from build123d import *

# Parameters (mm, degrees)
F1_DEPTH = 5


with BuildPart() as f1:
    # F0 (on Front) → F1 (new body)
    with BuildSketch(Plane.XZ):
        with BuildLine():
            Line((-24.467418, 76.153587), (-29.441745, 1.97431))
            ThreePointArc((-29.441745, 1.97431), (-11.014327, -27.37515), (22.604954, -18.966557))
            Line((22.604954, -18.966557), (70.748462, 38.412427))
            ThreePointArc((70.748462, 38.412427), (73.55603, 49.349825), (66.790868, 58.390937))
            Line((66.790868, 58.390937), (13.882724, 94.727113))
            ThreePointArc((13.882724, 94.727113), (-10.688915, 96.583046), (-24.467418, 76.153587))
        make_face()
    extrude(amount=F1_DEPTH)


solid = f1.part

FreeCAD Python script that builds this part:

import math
import FreeCAD as App
import Part
import Sketcher

V = App.Vector
Q = App.Units.Quantity

doc = App.newDocument("Part")
body = doc.addObject("PartDesign::Body", "Body")

sketch1 = body.newObject("Sketcher::SketchObject", "Sketch")
sketch1.AttachmentSupport = (doc.getObject("XZ_Plane"), [""])
sketch1.MapMode = "FlatFace"
sketch1.addGeometry(Part.LineSegment(V(-24.467418, 76.153587, 0), V(-29.441745, 1.97431, 0)), False)
sketch1.addGeometry(Part.ArcOfCircle(Part.Circle(V(0, 0, 0), V(0, 0, 1), 29.507867), math.radians(176.163593), math.radians(320.001862)), False)
sketch1.addGeometry(Part.LineSegment(V(22.604954, -18.966557, 0), V(70.748462, 38.412427, 0)), False)
sketch1.addGeometry(Part.ArcOfCircle(Part.Circle(V(60.738944, 46.810856, 0), V(0, 0, 1), 13.066142), math.radians(-39.998138), math.radians(62.407756)), False)
sketch1.addGeometry(Part.LineSegment(V(66.790868, 58.390937, 0), V(13.882724, 94.727113, 0)), False)
sketch1.addGeometry(Part.ArcOfCircle(Part.Circle(V(0, 74.512848, 0), V(0, 0, 1), 24.522369), math.radians(55.519555), math.radians(176.163595)), False)
sketch1.addConstraint(Sketcher.Constraint("Coincident", 0, 2, 1, 1))
sketch1.addConstraint(Sketcher.Constraint("Coincident", 1, 2, 2, 1))
sketch1.addConstraint(Sketcher.Constraint("Coincident", 2, 2, 3, 1))
sketch1.addConstraint(Sketcher.Constraint("Coincident", 3, 2, 4, 1))
sketch1.addConstraint(Sketcher.Constraint("Coincident", 4, 2, 5, 1))
sketch1.addConstraint(Sketcher.Constraint("Coincident", 5, 2, 0, 1))
sketch1.addConstraint(Sketcher.Constraint("Coincident", 1, 3, -1, 1))
sketch1.addConstraint(Sketcher.Constraint("PointOnObject", 5, 3, -2))
sketch1.addConstraint(Sketcher.Constraint("Radius", 3, Q("13.066142 mm")))
sketch1.addConstraint(Sketcher.Constraint("Radius", 5, Q("24.522369 mm")))
sketch1.addConstraint(Sketcher.Constraint("Radius", 1, Q("29.507867 mm")))
sketch1.addConstraint(Sketcher.Constraint("DistanceX", 0, 2, 1, 2, Q("52.046699 mm")))
sketch1.addConstraint(Sketcher.Constraint("DistanceY", -1, 1, 0, 2, Q("1.97431 mm")))
sketch1.addConstraint(Sketcher.Constraint("DistanceY", 3, 3, 5, 3, Q("27.701992 mm")))
sketch1.addConstraint(Sketcher.Constraint("DistanceX", 0, 2, 3, 3, Q("90.180689 mm")))
sketch1.addConstraint(Sketcher.Constraint("DistanceX", 3, 3, 2, 2, Q("10.009518 mm")))
sketch1.addConstraint(Sketcher.Constraint("DistanceY", 3, 3, 3, 2, Q("11.580081 mm")))
sketch1.addConstraint(Sketcher.Constraint("DistanceX", 4, 2, 3, 3, Q("46.85622 mm")))
sketch1.addConstraint(Sketcher.Constraint("DistanceY", 5, 3, 5, 2, Q("1.640739 mm")))
sketch1.addConstraint(Sketcher.Constraint("Distance", 0, Q("74.345875 mm")))
pad1 = body.newObject("PartDesign::Pad", "Pad")
pad1.Profile = sketch1
pad1.Length = 5

doc.recompute()
